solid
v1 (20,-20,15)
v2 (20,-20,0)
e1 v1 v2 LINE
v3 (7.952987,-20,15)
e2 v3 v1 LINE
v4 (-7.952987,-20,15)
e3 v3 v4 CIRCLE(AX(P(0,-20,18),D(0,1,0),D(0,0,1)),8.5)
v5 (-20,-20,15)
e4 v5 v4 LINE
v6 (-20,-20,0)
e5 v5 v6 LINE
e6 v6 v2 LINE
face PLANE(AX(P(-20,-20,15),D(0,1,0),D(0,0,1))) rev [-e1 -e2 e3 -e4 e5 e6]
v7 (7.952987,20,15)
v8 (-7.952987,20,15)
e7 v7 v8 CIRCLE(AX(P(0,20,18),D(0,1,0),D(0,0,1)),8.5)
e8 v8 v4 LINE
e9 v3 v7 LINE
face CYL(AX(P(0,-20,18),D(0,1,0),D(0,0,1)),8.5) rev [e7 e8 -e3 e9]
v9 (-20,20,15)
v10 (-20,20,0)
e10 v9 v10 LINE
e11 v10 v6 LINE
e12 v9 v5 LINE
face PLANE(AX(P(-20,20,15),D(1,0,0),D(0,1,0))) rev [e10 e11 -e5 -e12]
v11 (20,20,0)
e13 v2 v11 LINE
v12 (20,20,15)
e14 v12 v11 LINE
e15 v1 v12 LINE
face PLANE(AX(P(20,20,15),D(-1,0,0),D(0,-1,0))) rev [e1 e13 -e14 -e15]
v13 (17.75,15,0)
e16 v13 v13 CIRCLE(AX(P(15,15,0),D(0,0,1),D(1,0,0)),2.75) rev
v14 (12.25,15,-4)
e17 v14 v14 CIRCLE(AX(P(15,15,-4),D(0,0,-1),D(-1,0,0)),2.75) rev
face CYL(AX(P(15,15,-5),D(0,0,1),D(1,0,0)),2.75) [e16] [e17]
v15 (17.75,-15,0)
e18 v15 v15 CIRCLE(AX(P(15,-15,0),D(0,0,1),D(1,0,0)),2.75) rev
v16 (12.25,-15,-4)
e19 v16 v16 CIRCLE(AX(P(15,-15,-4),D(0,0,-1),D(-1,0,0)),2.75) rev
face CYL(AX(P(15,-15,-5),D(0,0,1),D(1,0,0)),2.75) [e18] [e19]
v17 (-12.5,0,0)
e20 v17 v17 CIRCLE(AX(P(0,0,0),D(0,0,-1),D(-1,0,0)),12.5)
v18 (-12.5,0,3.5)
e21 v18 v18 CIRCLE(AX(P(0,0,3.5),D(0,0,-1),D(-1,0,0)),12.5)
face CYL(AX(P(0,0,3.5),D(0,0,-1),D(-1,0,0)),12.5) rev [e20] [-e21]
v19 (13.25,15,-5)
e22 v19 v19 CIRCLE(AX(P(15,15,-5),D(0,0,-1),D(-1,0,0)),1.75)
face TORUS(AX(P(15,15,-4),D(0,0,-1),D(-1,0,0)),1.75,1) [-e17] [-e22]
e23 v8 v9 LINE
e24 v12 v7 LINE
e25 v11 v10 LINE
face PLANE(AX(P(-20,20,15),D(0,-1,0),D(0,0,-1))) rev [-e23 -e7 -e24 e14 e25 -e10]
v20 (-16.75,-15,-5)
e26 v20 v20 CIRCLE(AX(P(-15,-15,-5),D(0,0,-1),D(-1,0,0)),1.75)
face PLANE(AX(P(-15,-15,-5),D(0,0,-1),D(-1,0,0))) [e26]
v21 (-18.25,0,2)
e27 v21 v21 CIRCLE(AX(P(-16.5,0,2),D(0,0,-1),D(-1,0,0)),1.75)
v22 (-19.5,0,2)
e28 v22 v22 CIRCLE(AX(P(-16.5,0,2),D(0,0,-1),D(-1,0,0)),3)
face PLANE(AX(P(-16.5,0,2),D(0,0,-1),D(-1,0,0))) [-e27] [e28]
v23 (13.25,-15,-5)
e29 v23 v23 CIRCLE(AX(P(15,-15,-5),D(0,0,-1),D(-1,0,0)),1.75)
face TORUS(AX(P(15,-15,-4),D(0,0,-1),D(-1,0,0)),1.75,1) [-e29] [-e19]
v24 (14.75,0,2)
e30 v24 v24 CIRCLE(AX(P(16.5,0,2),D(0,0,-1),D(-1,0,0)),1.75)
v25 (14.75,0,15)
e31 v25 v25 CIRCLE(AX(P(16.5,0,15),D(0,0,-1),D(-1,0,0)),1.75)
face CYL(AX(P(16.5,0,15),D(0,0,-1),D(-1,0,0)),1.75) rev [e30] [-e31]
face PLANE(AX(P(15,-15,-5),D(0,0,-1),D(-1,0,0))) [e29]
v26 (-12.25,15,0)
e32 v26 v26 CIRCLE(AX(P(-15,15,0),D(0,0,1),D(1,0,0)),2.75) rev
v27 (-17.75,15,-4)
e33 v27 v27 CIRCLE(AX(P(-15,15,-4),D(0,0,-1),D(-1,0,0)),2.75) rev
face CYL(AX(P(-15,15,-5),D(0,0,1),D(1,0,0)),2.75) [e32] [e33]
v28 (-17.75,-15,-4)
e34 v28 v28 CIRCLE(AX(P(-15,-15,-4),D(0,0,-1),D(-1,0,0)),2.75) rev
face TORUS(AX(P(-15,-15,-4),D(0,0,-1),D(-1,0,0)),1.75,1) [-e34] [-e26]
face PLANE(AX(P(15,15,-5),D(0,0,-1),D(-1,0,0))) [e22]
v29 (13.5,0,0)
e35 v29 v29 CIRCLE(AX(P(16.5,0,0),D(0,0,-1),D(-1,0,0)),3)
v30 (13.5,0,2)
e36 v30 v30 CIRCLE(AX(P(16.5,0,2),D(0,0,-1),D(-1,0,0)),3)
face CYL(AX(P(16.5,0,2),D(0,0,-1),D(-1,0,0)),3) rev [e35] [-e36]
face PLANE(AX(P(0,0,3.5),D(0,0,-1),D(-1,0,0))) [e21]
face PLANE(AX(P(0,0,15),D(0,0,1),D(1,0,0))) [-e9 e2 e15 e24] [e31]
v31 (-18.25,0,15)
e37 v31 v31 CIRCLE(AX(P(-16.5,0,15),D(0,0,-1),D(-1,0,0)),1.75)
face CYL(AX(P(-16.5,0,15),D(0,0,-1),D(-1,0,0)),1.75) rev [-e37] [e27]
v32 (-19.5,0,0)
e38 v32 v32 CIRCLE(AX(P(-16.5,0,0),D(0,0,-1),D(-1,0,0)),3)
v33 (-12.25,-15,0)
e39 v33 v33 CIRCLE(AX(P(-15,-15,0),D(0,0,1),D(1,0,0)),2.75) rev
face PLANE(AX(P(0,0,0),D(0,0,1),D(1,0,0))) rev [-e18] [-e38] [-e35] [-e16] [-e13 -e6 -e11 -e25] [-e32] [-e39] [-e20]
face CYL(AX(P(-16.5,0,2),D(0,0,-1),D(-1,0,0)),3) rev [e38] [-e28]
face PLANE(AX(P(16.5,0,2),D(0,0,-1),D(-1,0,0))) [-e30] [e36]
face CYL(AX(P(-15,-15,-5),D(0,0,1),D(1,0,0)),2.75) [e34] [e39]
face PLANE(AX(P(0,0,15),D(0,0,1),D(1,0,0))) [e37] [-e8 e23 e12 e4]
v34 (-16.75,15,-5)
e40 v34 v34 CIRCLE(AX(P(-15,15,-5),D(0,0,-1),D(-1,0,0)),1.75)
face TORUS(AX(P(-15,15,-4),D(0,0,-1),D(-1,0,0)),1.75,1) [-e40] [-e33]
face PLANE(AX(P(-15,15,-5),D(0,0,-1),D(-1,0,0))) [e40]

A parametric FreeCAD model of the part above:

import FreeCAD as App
import Part
import Sketcher
from FreeCAD import Vector
Q = App.Units.Quantity


def edges_at(feature, points):
    """Names of the edges that pass closest to the given points."""
    edges = feature.Shape.Edges
    near = lambda p: min(range(len(edges)), key=lambda i: edges[i].distToShape(Part.Vertex(*p))[0])
    return sorted({f"Edge{near(p) + 1}" for p in points})

doc = App.newDocument("Part")
body = doc.addObject("PartDesign::Body", "Body")

sketch1 = doc.addObject("Sketcher::SketchObject", "Sketch")
body.addObject(sketch1)
sketch1.AttachmentSupport = (doc.XY_Plane, [""])
sketch1.MapMode = "FlatFace"
sketch1.addGeometry(Part.LineSegment(Vector(-20, 20, 0), Vector(-20, -20, 0)), False)
sketch1.addGeometry(Part.LineSegment(Vector(-20, -20, 0), Vector(20, -20, 0)), False)
sketch1.addGeometry(Part.LineSegment(Vector(20, -20, 0), Vector(20, 20, 0)), False)
sketch1.addGeometry(Part.LineSegment(Vector(20, 20, 0), Vector(-20, 20, 0)), False)
sketch1.addConstraint(Sketcher.Constraint("Coincident", 0, 2, 1, 1))
sketch1.addConstraint(Sketcher.Constraint("Coincident", 1, 2, 2, 1))
sketch1.addConstraint(Sketcher.Constraint("Coincident", 2, 2, 3, 1))
sketch1.addConstraint(Sketcher.Constraint("Coincident", 3, 2, 0, 1))
sketch1.addConstraint(Sketcher.Constraint("Vertical", 0))
sketch1.addConstraint(Sketcher.Constraint("Horizontal", 1))
sketch1.addConstraint(Sketcher.Constraint("Vertical", 2))
sketch1.addConstraint(Sketcher.Constraint("Horizontal", 3))
sketch1.addConstraint(Sketcher.Constraint("Symmetric", 0, 2, 2, 2, -1, 1))
sketch1.addConstraint(Sketcher.Constraint("Equal", 3, 0))
sketch1.addConstraint(Sketcher.Constraint("DistanceX", 1, 1, 1, 2, Q("40 mm")))
pad1 = doc.addObject("PartDesign::Pad", "Pad")
body.addObject(pad1)
pad1.Profile = sketch1
pad1.Length = 15

sketch2 = doc.addObject("Sketcher::SketchObject", "Sketch001")
body.addObject(sketch2)
sketch2.AttachmentSupport = (doc.XY_Plane, [""])
sketch2.MapMode = "FlatFace"
sketch2.addGeometry(Part.Circle(Vector(15, 15, 0), Vector(0, 0, 1), 2.8), False)
sketch2.addGeometry(Part.Circle(Vector(-15, 15, 0), Vector(0, 0, 1), 2.8), False)
sketch2.addGeometry(Part.Circle(Vector(15, -15, 0), Vector(0, 0, 1), 2.8), False)
sketch2.addGeometry(Part.Circle(Vector(-15, -15, 0), Vector(0, 0, 1), 2.8), False)
sketch2.addConstraint(Sketcher.Constraint("Equal", 0, 1))
sketch2.addConstraint(Sketcher.Constraint("Equal", 1, 2))
sketch2.addConstraint(Sketcher.Constraint("Equal", 2, 3))
sketch2.addConstraint(Sketcher.Constraint("Symmetric", 1, 3, 2, 3, -1, 1))
sketch2.addConstraint(Sketcher.Constraint("Symmetric", 0, 3, 3, 3, -1, 1))
sketch2.addConstraint(Sketcher.Constraint("Symmetric", 0, 3, 1, 3, -2))
sketch2.addConstraint(Sketcher.Constraint("Diameter", 0, Q("5.5 mm")))
sketch2.addConstraint(Sketcher.Constraint("DistanceX", -1, 1, 0, 3, Q("15 mm")))
sketch2.addConstraint(Sketcher.Constraint("DistanceY", -1, 1, 0, 3, Q("15 mm")))
pad2 = doc.addObject("PartDesign::Pad", "Pad001")
body.addObject(pad2)
pad2.Profile = sketch2
pad2.Length = 5
pad2.Reversed = True
doc.recompute()

fillet = doc.addObject("PartDesign::Fillet", "Fillet")
body.addObject(fillet)
fillet.Base = (pad2, edges_at(pad2, [
    (12.25, 15, -5),
    (-17.75, 15, -5),
    (12.25, -15, -5),
    (-17.75, -15, -5),
]))
fillet.Radius = 1

sketch3 = doc.addObject("Sketcher::SketchObject", "Sketch002")
body.addObject(sketch3)
sketch3.AttachmentSupport = (doc.XY_Plane, [""])
sketch3.MapMode = "FlatFace"
sketch3.addGeometry(Part.Circle(Vector(0, 0, 0), Vector(0, 0, 1), 12), False)
sketch3.addConstraint(Sketcher.Constraint("Coincident", 0, 3, -1, 1))
sketch3.addConstraint(Sketcher.Constraint("Diameter", 0, Q("25 mm")))
pocket1 = doc.addObject("PartDesign::Pocket", "Pocket")
body.addObject(pocket1)
pocket1.Profile = sketch3
pocket1.Length = 3.5
pocket1.Reversed = True

sketch4 = doc.addObject("Sketcher::SketchObject", "Sketch003")
body.addObject(sketch4)
sketch4.AttachmentSupport = (doc.XZ_Plane, [""])
sketch4.MapMode = "FlatFace"
sketch4.AttachmentOffset = App.Placement(Vector(0, 0, -20), App.Rotation())
sketch4.addGeometry(Part.Circle(Vector(0, 18, 0), Vector(0, 0, 1), 8), False)
sketch4.addConstraint(Sketcher.Constraint("PointOnObject", 0, 3, -2))
sketch4.addConstraint(Sketcher.Constraint("Diameter", 0, Q("17 mm")))
sketch4.addConstraint(Sketcher.Constraint("DistanceY", -1, 1, 0, 3, Q("18 mm")))
pocket2 = doc.addObject("PartDesign::Pocket", "Pocket001")
body.addObject(pocket2)
pocket2.Profile = sketch4
pocket2.Type = "ThroughAll"
pocket2.Reversed = True

sketch5 = doc.addObject("Sketcher::SketchObject", "Sketch004")
body.addObject(sketch5)
sketch5.AttachmentSupport = (doc.XY_Plane, [""])
sketch5.MapMode = "FlatFace"
sketch5.addGeometry(Part.Circle(Vector(16.5, 0, 0), Vector(0, 0, 1), 3), False)
sketch5.addGeometry(Part.Circle(Vector(-16.5, 0, 0), Vector(0, 0, 1), 3), False)
sketch5.addConstraint(Sketcher.Constraint("Equal", 0, 1))
sketch5.addConstraint(Sketcher.Constraint("Symmetric", 0, 3, 1, 3, -1, 1))
sketch5.addConstraint(Sketcher.Constraint("PointOnObject", 0, 3, -1))
sketch5.addConstraint(Sketcher.Constraint("Diameter", 0, Q("6 mm")))
sketch5.addConstraint(Sketcher.Constraint("DistanceX", 1, 3, 0, 3, Q("33 mm")))
pocket3 = doc.addObject("PartDesign::Pocket", "Pocket002")
body.addObject(pocket3)
pocket3.Profile = sketch5
pocket3.Length = 2
pocket3.Reversed = True

sketch6 = doc.addObject("Sketcher::SketchObject", "Sketch005")
body.addObject(sketch6)
sketch6.AttachmentSupport = (doc.XY_Plane, [""])
sketch6.MapMode = "FlatFace"
sketch6.addGeometry(Part.Circle(Vector(-16.5, 0, 0), Vector(0, 0, 1), 1.8), False)
sketch6.addGeometry(Part.Circle(Vector(16.5, 0, 0), Vector(0, 0, 1), 1.8), False)
sketch6.addConstraint(Sketcher.Constraint("Equal", 0, 1))
sketch6.addConstraint(Sketcher.Constraint("Symmetric", 0, 3, 1, 3, -1, 1))
sketch6.addConstraint(Sketcher.Constraint("PointOnObject", 0, 3, -1))
sketch6.addConstraint(Sketcher.Constraint("Diameter", 0, Q("3.5 mm")))
sketch6.addConstraint(Sketcher.Constraint("DistanceX", 0, 3, 1, 3, Q("33 mm")))
pocket4 = doc.addObject("PartDesign::Pocket", "Pocket003")
body.addObject(pocket4)
pocket4.Profile = sketch6
pocket4.Type = "ThroughAll"
pocket4.Reversed = True

doc.recompute()
